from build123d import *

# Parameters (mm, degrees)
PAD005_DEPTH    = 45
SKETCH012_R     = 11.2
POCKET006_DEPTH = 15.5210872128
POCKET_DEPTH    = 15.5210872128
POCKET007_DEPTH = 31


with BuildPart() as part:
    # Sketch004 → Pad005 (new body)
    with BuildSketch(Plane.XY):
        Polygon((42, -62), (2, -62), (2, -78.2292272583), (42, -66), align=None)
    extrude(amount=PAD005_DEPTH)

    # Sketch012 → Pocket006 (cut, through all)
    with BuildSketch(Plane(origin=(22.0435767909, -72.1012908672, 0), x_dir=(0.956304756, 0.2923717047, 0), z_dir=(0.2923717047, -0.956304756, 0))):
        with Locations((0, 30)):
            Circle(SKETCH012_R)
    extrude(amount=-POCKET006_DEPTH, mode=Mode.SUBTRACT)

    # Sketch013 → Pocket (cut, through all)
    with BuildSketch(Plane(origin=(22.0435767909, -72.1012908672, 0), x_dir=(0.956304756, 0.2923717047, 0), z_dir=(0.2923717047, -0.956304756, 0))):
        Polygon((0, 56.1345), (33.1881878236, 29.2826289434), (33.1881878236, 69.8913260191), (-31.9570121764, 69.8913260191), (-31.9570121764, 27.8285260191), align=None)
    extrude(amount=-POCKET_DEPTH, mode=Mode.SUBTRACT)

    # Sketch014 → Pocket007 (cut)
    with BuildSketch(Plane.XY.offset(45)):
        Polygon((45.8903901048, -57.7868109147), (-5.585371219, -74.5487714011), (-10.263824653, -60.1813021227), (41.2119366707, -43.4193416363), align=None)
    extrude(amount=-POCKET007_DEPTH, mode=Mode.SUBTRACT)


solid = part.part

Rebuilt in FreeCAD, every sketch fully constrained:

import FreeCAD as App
import Part
import Sketcher
Q = App.Units.Quantity

doc = App.newDocument("Part")
body = doc.addObject("PartDesign::Body", "Body")

# Sketch on XY plane
sketch1 = doc.addObject("Sketcher::SketchObject", "Sketch")
body.addObject(sketch1)
sketch1.AttachmentSupport = (doc.XY_Plane, [""])
sketch1.MapMode = "FlatFace"
sketch1.addGeometry([
    Part.LineSegment(App.Vector(42, -62, 0), App.Vector(2, -62, 0)),
    Part.LineSegment(App.Vector(2, -62, 0), App.Vector(2, -78.2, 0)),
    Part.LineSegment(App.Vector(2, -78.2, 0), App.Vector(42, -66, 0)),
    Part.LineSegment(App.Vector(42, -66, 0), App.Vector(42, -62, 0)),
], False)
sketch1.addConstraint([
    Sketcher.Constraint("Coincident", 0, 2, 1, 1),
    Sketcher.Constraint("Coincident", 1, 2, 2, 1),
    Sketcher.Constraint("Coincident", 2, 2, 3, 1),
    Sketcher.Constraint("Coincident", 3, 2, 0, 1),
    Sketcher.Constraint("Horizontal", 0),
    Sketcher.Constraint("Vertical", 1),
    Sketcher.Constraint("Vertical", 3),
    Sketcher.Constraint("DistanceX", 0, 2, 0, 1, Q("40 mm")),
    Sketcher.Constraint("DistanceY", 3, 1, 3, 2, Q("4 mm")),
    Sketcher.Constraint("Angle", 2, Q("17 deg")),
    Sketcher.Constraint("DistanceX", -1, 1, 0, 2, Q("2 mm")),
    Sketcher.Constraint("DistanceY", 0, 2, -1, 1, Q("62 mm")),
])
pad1 = doc.addObject("PartDesign::Pad", "Pad")
body.addObject(pad1)
pad1.Profile = sketch1
pad1.Length = 45

# Sketch on an angled plane
sketch2 = doc.addObject("Sketcher::SketchObject", "Sketch001")
body.addObject(sketch2)
sketch2.Placement = App.Placement(App.Vector(22.043577, -72.101291, 0), App.Rotation(App.Vector(0.956304756, 0.292371705, 0), App.Vector(0, 0, 1), App.Vector(0.292371705, -0.956304756, 0), "ZXY"))
sketch2.addGeometry(Part.Circle(App.Vector(0, 30, 0), App.Vector(0, 0, 1), 11), False)
sketch2.addConstraint([
    Sketcher.Constraint("PointOnObject", 0, 3, -2),
    Sketcher.Constraint("Diameter", 0, Q("22.4 mm")),
    Sketcher.Constraint("DistanceY", -1, 1, 0, 3, Q("30 mm")),
])
pocket1 = doc.addObject("PartDesign::Pocket", "Pocket")
body.addObject(pocket1)
pocket1.Profile = sketch2
pocket1.Type = "ThroughAll"

# Sketch on an angled plane
sketch3 = doc.addObject("Sketcher::SketchObject", "Sketch002")
body.addObject(sketch3)
sketch3.Placement = App.Placement(App.Vector(22.043577, -72.101291, 0), App.Rotation(App.Vector(0.956304756, 0.292371705, 0), App.Vector(0, 0, 1), App.Vector(0.292371705, -0.956304756, 0), "ZXY"))
sketch3.addGeometry([
    Part.LineSegment(App.Vector(0, 56, 0), App.Vector(33, 29, 0)),  # 0
    Part.LineSegment(App.Vector(33, 29, 0), App.Vector(33, 70, 0)),  # 1
    Part.LineSegment(App.Vector(33, 70, 0), App.Vector(-32, 70, 0)),  # 2
    Part.LineSegment(App.Vector(-32, 70, 0), App.Vector(-32, 28, 0)),  # 3
    Part.LineSegment(App.Vector(-32, 28, 0), App.Vector(0, 56, 0)),  # 4
], False)
sketch3.addConstraint([
    Sketcher.Constraint("Coincident", 0, 2, 1, 1),
    Sketcher.Constraint("Coincident", 1, 2, 2, 1),
    Sketcher.Constraint("Coincident", 2, 2, 3, 1),
    Sketcher.Constraint("Coincident", 3, 2, 4, 1),
    Sketcher.Constraint("Coincident", 4, 2, 0, 1),
    Sketcher.Constraint("Vertical", 1),
    Sketcher.Constraint("Horizontal", 2),
    Sketcher.Constraint("Vertical", 3),
    Sketcher.Constraint("PointOnObject", 4, 2, -2),
    Sketcher.Constraint("Equal", 0, 4),
    Sketcher.Constraint("DistanceX", 2, 2, 2, 1, Q("65.1452 mm")),
    Sketcher.Constraint("DistanceY", 3, 2, 3, 1, Q("42.0628 mm")),
    Sketcher.Constraint("Distance", 0, Q("42.6905 mm")),
    Sketcher.Constraint("DistanceY", -1, 1, 4, 2, Q("56.1345 mm")),
    Sketcher.Constraint("DistanceY", 1, 1, 1, 2, Q("40.608697 mm")),
])
pocket2 = doc.addObject("PartDesign::Pocket", "Pocket001")
body.addObject(pocket2)
pocket2.Profile = sketch3
pocket2.Type = "ThroughAll"

# Sketch on XY plane
sketch4 = doc.addObject("Sketcher::SketchObject", "Sketch003")
body.addObject(sketch4)
sketch4.AttachmentSupport = (doc.XY_Plane, [""])
sketch4.MapMode = "FlatFace"
sketch4.AttachmentOffset = App.Placement(App.Vector(0, 0, 45), App.Rotation())
sketch4.addGeometry([
    Part.LineSegment(App.Vector(-6, -75, 0), App.Vector(46, -58, 0)),
    Part.LineSegment(App.Vector(46, -58, 0), App.Vector(41, -43, 0)),
    Part.LineSegment(App.Vector(41, -43, 0), App.Vector(-10, -60, 0)),
    Part.LineSegment(App.Vector(-10, -60, 0), App.Vector(-6, -75, 0)),
], False)
sketch4.addConstraint([
    Sketcher.Constraint("Coincident", 0, 2, 1, 1),
    Sketcher.Constraint("Coincident", 1, 2, 2, 1),
    Sketcher.Constraint("Coincident", 2, 2, 3, 1),
    Sketcher.Constraint("Coincident", 3, 2, 0, 1),
    Sketcher.Constraint("Perpendicular", 0, 1),
    Sketcher.Constraint("Perpendicular", 1, 2),
    Sketcher.Constraint("Perpendicular", 2, 3),
    Sketcher.Constraint("Distance", 1, Q("15.11 mm")),
    Sketcher.Constraint("Distance", 0, Q("54.1361 mm")),
    Sketcher.Constraint("DistanceX", -1, 1, 0, 2, Q("45.89039 mm")),
    Sketcher.Constraint("DistanceY", 0, 2, -1, 1, Q("57.786811 mm")),
    Sketcher.Constraint("DistanceY", 1, 2, -1, 1, Q("43.419342 mm")),
])
pocket3 = doc.addObject("PartDesign::Pocket", "Pocket002")
body.addObject(pocket3)
pocket3.Profile = sketch4
pocket3.Length = 31

doc.recompute()
